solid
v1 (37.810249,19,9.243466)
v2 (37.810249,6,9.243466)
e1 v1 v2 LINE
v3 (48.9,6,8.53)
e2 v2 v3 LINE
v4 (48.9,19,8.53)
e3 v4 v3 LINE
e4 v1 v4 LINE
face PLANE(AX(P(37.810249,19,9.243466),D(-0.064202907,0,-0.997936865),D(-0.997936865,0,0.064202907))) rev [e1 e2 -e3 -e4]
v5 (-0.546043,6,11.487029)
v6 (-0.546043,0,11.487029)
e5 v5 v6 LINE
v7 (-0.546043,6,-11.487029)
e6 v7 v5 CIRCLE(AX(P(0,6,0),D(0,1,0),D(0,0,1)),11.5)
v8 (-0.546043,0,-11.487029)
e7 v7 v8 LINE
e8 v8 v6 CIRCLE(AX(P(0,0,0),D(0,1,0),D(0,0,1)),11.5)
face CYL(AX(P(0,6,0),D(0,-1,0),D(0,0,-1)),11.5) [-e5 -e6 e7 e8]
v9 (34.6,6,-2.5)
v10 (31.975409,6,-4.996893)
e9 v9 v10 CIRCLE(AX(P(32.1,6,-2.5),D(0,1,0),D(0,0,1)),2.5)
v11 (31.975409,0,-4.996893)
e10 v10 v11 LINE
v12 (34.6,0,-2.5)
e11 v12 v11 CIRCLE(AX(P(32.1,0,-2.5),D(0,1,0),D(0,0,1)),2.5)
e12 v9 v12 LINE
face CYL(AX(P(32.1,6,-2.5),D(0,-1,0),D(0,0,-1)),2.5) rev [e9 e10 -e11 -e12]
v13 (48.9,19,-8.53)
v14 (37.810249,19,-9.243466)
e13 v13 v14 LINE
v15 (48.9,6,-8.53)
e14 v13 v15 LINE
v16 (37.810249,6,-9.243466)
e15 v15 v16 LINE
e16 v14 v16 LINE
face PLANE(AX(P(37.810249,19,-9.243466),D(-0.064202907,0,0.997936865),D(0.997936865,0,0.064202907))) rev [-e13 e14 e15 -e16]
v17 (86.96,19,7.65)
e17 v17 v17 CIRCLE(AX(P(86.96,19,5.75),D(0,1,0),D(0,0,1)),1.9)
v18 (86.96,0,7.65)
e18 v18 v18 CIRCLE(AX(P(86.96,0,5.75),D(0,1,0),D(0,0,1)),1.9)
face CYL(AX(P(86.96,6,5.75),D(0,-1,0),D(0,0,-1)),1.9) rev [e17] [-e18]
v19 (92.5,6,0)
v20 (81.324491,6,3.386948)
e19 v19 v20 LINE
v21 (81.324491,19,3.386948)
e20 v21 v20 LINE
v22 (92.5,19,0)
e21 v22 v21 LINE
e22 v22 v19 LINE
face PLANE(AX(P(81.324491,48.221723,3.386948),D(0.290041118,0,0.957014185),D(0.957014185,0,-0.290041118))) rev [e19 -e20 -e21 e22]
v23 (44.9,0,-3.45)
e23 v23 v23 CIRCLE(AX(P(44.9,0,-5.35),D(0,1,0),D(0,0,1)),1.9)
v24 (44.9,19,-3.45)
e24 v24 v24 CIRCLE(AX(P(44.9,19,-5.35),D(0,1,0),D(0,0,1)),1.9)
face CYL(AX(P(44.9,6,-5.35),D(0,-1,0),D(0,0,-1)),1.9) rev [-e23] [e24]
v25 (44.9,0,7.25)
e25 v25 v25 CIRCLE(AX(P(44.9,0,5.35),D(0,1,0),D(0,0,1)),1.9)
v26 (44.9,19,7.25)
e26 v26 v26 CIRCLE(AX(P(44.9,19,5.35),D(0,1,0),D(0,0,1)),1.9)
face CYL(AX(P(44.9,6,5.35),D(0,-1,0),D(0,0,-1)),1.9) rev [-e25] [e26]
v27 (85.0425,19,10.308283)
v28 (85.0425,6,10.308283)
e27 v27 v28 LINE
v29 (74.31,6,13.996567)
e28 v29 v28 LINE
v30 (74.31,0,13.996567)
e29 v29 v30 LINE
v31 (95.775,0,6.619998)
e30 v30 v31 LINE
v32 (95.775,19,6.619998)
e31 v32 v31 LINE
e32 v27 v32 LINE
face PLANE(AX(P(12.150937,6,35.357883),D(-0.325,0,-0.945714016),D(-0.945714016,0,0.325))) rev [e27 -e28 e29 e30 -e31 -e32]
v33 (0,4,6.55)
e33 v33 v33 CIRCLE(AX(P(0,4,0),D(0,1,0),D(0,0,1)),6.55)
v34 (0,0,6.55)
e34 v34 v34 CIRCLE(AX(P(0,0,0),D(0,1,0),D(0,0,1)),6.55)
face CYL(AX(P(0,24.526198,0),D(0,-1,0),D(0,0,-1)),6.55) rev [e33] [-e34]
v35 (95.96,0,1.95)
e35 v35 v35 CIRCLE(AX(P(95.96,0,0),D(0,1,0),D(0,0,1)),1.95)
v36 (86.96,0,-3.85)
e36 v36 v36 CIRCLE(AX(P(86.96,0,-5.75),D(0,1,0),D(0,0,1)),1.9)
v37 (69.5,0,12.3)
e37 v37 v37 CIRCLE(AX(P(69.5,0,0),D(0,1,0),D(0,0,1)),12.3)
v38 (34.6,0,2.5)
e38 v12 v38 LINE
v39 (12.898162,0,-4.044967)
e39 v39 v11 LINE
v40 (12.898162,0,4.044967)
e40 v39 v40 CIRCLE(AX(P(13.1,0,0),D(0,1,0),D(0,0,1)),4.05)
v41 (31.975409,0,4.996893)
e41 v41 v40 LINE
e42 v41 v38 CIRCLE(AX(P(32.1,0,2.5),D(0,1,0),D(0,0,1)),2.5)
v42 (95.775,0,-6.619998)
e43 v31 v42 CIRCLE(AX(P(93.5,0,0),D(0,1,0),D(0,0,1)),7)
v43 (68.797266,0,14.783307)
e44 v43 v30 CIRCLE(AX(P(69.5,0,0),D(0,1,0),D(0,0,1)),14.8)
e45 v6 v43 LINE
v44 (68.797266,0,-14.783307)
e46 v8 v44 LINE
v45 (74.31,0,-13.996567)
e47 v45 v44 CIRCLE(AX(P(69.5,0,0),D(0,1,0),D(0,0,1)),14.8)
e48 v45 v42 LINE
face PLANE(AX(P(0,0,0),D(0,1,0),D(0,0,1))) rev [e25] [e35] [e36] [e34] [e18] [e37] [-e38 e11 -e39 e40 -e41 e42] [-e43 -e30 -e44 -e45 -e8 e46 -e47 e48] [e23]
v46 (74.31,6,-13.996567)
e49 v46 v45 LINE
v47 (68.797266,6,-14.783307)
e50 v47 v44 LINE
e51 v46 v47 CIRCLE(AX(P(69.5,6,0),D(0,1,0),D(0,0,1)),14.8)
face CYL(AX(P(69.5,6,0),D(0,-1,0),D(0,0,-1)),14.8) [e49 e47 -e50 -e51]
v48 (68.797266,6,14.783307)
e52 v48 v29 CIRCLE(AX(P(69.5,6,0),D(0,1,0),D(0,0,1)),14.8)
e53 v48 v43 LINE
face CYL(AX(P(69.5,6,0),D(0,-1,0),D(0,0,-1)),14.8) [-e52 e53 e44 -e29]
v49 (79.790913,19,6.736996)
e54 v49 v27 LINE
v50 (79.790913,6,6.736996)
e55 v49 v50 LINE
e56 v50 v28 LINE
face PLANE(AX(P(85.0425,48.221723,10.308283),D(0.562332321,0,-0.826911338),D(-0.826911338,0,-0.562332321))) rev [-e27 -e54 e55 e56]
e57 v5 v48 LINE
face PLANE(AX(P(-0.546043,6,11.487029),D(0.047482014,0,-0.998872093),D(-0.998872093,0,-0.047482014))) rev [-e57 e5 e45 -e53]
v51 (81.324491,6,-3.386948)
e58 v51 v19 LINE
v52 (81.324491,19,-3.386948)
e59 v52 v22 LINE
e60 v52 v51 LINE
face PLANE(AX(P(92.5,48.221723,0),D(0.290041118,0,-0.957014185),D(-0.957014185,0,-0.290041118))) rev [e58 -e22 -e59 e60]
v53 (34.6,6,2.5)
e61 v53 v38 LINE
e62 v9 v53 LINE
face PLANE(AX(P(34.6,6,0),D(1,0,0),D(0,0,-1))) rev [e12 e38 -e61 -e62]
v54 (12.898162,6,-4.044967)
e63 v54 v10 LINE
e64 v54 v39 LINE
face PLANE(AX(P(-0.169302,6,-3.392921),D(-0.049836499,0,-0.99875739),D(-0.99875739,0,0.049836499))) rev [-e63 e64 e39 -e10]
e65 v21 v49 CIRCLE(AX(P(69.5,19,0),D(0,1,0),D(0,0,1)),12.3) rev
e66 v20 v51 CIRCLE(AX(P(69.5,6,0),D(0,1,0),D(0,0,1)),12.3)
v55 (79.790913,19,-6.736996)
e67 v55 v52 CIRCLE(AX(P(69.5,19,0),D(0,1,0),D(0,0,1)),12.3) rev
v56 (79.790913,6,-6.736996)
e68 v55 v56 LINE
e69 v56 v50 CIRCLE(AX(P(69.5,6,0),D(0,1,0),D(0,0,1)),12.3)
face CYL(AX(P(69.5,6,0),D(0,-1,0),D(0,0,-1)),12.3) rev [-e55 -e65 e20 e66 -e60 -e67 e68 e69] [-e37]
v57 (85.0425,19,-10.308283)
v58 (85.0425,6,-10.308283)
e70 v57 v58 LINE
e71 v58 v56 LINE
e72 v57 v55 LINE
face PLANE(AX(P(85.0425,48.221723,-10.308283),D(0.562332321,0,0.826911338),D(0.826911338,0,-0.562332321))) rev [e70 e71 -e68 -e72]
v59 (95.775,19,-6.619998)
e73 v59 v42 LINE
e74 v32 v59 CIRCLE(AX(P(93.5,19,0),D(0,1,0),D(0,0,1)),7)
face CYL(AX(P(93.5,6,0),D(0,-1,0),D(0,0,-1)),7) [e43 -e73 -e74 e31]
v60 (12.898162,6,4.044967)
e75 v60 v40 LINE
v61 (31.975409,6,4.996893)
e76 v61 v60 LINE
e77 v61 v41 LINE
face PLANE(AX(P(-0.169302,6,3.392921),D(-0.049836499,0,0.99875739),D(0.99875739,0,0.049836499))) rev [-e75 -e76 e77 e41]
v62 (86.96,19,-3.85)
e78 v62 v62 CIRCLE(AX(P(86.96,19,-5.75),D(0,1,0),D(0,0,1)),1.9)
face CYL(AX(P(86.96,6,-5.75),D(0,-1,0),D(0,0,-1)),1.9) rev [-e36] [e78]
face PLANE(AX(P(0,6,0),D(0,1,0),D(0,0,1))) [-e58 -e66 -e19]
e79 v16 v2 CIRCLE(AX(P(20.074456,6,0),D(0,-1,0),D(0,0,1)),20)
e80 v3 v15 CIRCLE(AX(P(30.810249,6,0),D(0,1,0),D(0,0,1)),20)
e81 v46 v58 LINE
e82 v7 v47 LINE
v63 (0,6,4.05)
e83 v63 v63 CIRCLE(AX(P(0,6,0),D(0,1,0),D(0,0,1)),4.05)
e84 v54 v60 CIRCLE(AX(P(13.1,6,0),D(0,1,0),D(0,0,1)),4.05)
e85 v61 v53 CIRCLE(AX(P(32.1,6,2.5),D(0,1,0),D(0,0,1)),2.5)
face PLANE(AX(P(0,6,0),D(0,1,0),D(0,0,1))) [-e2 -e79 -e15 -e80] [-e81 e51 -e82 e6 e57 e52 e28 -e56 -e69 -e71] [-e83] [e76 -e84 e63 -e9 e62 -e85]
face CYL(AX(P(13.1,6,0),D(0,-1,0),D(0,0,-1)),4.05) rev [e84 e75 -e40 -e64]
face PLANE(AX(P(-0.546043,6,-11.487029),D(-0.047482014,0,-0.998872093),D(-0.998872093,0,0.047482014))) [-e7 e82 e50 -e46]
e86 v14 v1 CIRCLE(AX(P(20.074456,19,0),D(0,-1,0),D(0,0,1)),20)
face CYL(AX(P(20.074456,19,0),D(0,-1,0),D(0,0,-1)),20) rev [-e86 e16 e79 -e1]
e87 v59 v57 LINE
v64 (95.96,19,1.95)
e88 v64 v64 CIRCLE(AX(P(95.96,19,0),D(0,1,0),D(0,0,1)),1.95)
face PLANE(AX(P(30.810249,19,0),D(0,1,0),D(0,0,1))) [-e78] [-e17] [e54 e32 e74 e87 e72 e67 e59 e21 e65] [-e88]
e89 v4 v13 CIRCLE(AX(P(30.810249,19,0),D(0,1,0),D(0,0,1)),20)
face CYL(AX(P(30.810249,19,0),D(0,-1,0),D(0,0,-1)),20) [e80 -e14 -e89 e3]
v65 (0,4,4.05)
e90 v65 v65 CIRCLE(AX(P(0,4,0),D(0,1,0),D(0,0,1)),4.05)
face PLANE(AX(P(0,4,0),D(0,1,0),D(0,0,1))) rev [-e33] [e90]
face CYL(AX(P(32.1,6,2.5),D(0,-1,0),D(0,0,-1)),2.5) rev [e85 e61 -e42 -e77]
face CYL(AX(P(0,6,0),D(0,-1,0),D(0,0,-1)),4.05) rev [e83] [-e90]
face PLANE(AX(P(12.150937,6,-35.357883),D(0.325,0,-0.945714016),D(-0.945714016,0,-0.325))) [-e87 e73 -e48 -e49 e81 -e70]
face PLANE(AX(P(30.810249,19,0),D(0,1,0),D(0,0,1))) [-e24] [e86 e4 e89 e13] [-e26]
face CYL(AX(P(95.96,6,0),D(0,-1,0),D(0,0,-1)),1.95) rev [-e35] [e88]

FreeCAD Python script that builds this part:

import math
import FreeCAD as App
import Part
import Sketcher

V = App.Vector
Q = App.Units.Quantity

doc = App.newDocument("Part")
body = doc.addObject("PartDesign::Body", "Body")

sketch1 = doc.addObject("Sketcher::SketchObject", "Sketch")
body.addObject(sketch1)
sketch1.AttachmentSupport = (doc.XZ_Plane, [""])
sketch1.MapMode = "FlatFace"
sketch1.addGeometry([
    Part.LineSegment(V(68.8, -14.8, 0), V(-0.5, -11.5, 0)),
    Part.ArcOfCircle(Part.Circle(V(0, 0, 0), V(0, 0, 1), 11.5), math.radians(93), math.radians(267)),
    Part.LineSegment(V(-0.5, 11.5, 0), V(68.8, 14.8, 0)),
    Part.ArcOfCircle(Part.Circle(V(69.5, 0, 0), V(0, 0, 1), 14.8), math.radians(71), math.radians(93)),
    Part.LineSegment(V(74.3, 14, 0), V(95.8, 6.6, 0)),
    Part.ArcOfCircle(Part.Circle(V(93.5, 0, 0), V(0, 0, 1), 7), math.radians(-71), math.radians(71)),
    Part.LineSegment(V(95.8, -6.6, 0), V(74.3, -14, 0)),
    Part.ArcOfCircle(Part.Circle(V(69.5, 0, 0), V(0, 0, 1), 14.8), math.radians(-93), math.radians(-71)),
    Part.Circle(V(44.9, 5.3, 0), V(0, 0, 1), 1.9),
    Part.Circle(V(87, 5.8, 0), V(0, 0, 1), 1.9),
    Part.Circle(V(0, 0, 0), V(0, 0, 1), 4),
    Part.LineSegment(V(32, 5, 0), V(12.9, 4, 0)),
    Part.ArcOfCircle(Part.Circle(V(13.1, 0, 0), V(0, 0, 1), 4), math.radians(93), math.radians(267)),
    Part.LineSegment(V(12.9, -4, 0), V(32, -5, 0)),
    Part.ArcOfCircle(Part.Circle(V(32.1, -2.5, 0), V(0, 0, 1), 2.5), math.radians(-93), math.radians(0)),
    Part.LineSegment(V(34.6, -2.5, 0), V(34.6, 2.5, 0)),
    Part.ArcOfCircle(Part.Circle(V(32.1, 2.5, 0), V(0, 0, 1), 2.5), math.radians(0), math.radians(93)),
    Part.Circle(V(44.9, -5.3, 0), V(0, 0, 1), 1.9),
    Part.Circle(V(69.5, 0, 0), V(0, 0, 1), 12.3),
    Part.Circle(V(96, 0, 0), V(0, 0, 1), 1.9),
    Part.Circle(V(87, -5.8, 0), V(0, 0, 1), 1.9),
], False)
sketch1.addConstraint([
    Sketcher.Constraint("Tangent", 0, 2, 1, 2),
    Sketcher.Constraint("Tangent", 1, 1, 2, 1),
    Sketcher.Constraint("Tangent", 2, 2, 3, 2),
    Sketcher.Constraint("Tangent", 3, 1, 4, 1),
    Sketcher.Constraint("Tangent", 4, 2, 5, 2),
    Sketcher.Constraint("Tangent", 5, 1, 6, 1),
    Sketcher.Constraint("Tangent", 6, 2, 7, 2),
    Sketcher.Constraint("Tangent", 7, 1, 0, 1),
    Sketcher.Constraint("Tangent", 11, 2, 12, 1),
    Sketcher.Constraint("Tangent", 12, 2, 13, 1),
    Sketcher.Constraint("Tangent", 13, 2, 14, 1),
    Sketcher.Constraint("Tangent", 14, 2, 15, 1),
    Sketcher.Constraint("Tangent", 15, 2, 16, 1),
    Sketcher.Constraint("Tangent", 16, 2, 11, 1),
    Sketcher.Constraint("Vertical", 15),
    Sketcher.Constraint("Coincident", 1, 3, -1, 1),
    Sketcher.Constraint("Coincident", 10, 3, -1, 1),
    Sketcher.Constraint("Coincident", 7, 3, 3, 3),
    Sketcher.Constraint("Coincident", 18, 3, 3, 3),
    Sketcher.Constraint("Equal", 3, 7),
    Sketcher.Constraint("Equal", 8, 9),
    Sketcher.Constraint("Equal", 10, 12),
    Sketcher.Constraint("Equal", 14, 16),
    Sketcher.Constraint("Equal", 9, 17),
    Sketcher.Constraint("Equal", 17, 20),
    Sketcher.Constraint("Symmetric", 8, 3, 17, 3, -1),
    Sketcher.Constraint("Symmetric", 9, 3, 20, 3, -1),
    Sketcher.Constraint("Symmetric", 4, 2, 5, 1, -1),
    Sketcher.Constraint("Symmetric", 11, 2, 12, 2, -1),
    Sketcher.Constraint("PointOnObject", 19, 3, -1),
    Sketcher.Constraint("Radius", 5, Q("7 mm")),
    Sketcher.Constraint("Diameter", 8, Q("3.8 mm")),
    Sketcher.Constraint("Diameter", 10, Q("8.1 mm")),
    Sketcher.Constraint("Diameter", 18, Q("24.6 mm")),
    Sketcher.Constraint("Diameter", 19, Q("3.9 mm")),
    Sketcher.Constraint("Radius", 1, Q("11.5 mm")),
    Sketcher.Constraint("Radius", 3, Q("14.8 mm")),
    Sketcher.Constraint("Radius", 14, Q("2.5 mm")),
    Sketcher.Constraint("DistanceY", 15, 1, 15, 2, Q("5 mm")),
    Sketcher.Constraint("DistanceX", 3, 3, 5, 3, Q("24 mm")),
    Sketcher.Constraint("DistanceX", 12, 3, 14, 3, Q("19 mm")),
    Sketcher.Constraint("DistanceX", 9, 3, 19, 3, Q("9 mm")),
    Sketcher.Constraint("DistanceX", -1, 1, 3, 3, Q("69.5 mm")),
    Sketcher.Constraint("DistanceX", -1, 1, 8, 3, Q("44.9 mm")),
    Sketcher.Constraint("DistanceX", -1, 1, 12, 3, Q("13.1 mm")),
    Sketcher.Constraint("DistanceY", 8, 3, 9, 3, Q("0.4 mm")),
    Sketcher.Constraint("DistanceY", 17, 3, 8, 3, Q("10.7 mm")),
    Sketcher.Constraint("DistanceX", -1, 1, 9, 3, Q("86.96 mm")),
])
pad1 = doc.addObject("PartDesign::Pad", "Pad")
body.addObject(pad1)
pad1.Profile = sketch1
pad1.Length = 6
pad1.Reversed = True

sketch2 = doc.addObject("Sketcher::SketchObject", "Sketch001")
body.addObject(sketch2)
sketch2.AttachmentSupport = (doc.XZ_Plane, [""])
sketch2.MapMode = "FlatFace"
sketch2.addGeometry(Part.Circle(V(0, 0, 0), V(0, 0, 1), 7), False)
sketch2.addConstraint([
    Sketcher.Constraint("Coincident", 0, 3, -1, 1),
    Sketcher.Constraint("Diameter", 0, Q("13.1 mm")),
])
pocket1 = doc.addObject("PartDesign::Pocket", "Pocket")
body.addObject(pocket1)
pocket1.Profile = sketch2
pocket1.Length = 4

sketch3 = doc.addObject("Sketcher::SketchObject", "Sketch002")
body.addObject(sketch3)
sketch3.AttachmentSupport = (doc.XZ_Plane, [""])
sketch3.MapMode = "FlatFace"
sketch3.AttachmentOffset = App.Placement(V(0, 0, -6), App.Rotation())
sketch3.addGeometry([
    Part.LineSegment(V(48.9, -8.5, 0), V(37.8, -9.2, 0)),
    Part.ArcOfCircle(Part.Circle(V(20.1, 0, 0), V(0, 0, 1), 20), math.radians(-28), math.radians(28)),
    Part.LineSegment(V(37.8, 9.2, 0), V(48.9, 8.5, 0)),
    Part.ArcOfCircle(Part.Circle(V(30.8, 0, 0), V(0, 0, 1), 20), math.radians(-25), math.radians(25)),
    Part.Circle(V(44.9, 5.3, 0), V(0, 0, 1), 1.9),
    Part.Circle(V(44.9, -5.3, 0), V(0, 0, 1), 1.9),
], False)
sketch3.addConstraint([
    Sketcher.Constraint("Coincident", 0, 2, 1, 1),
    Sketcher.Constraint("Coincident", 1, 2, 2, 1),
    Sketcher.Constraint("Coincident", 2, 2, 3, 2),
    Sketcher.Constraint("Coincident", 3, 1, 0, 1),
    Sketcher.Constraint("Equal", 1, 3),
    Sketcher.Constraint("Equal", 4, 5),
    Sketcher.Constraint("Symmetric", 4, 3, 5, 3, -1),
    Sketcher.Constraint("Symmetric", 0, 2, 1, 2, -1),
    Sketcher.Constraint("Symmetric", 2, 2, 3, 1, -1),
    Sketcher.Constraint("Radius", 1, Q("20 mm")),
    Sketcher.Constraint("Diameter", 4, Q("3.8 mm")),
    Sketcher.Constraint("DistanceX", 3, 3, 0, 2, Q("7 mm")),
    Sketcher.Constraint("DistanceX", 4, 3, 2, 2, Q("4 mm")),
    Sketcher.Constraint("DistanceX", -1, 1, 4, 3, Q("44.9 mm")),
    Sketcher.Constraint("DistanceY", 5, 3, 4, 3, Q("10.7 mm")),
    Sketcher.Constraint("DistanceY", -1, 1, 2, 2, Q("8.53 mm")),
    Sketcher.Constraint("Distance", 0, Q("11.112678 mm")),
])
pad2 = doc.addObject("PartDesign::Pad", "Pad001")
body.addObject(pad2)
pad2.Profile = sketch3
pad2.Length = 13
pad2.Reversed = True

sketch4 = doc.addObject("Sketcher::SketchObject", "Sketch003")
body.addObject(sketch4)
sketch4.AttachmentSupport = (doc.XZ_Plane, [""])
sketch4.MapMode = "FlatFace"
sketch4.AttachmentOffset = App.Placement(V(0, 0, -6), App.Rotation())
sketch4.addGeometry([
    Part.LineSegment(V(85, -10.3, 0), V(79.8, -6.7, 0)),
    Part.ArcOfCircle(Part.Circle(V(69.5, 0, 0), V(0, 0, 1), 12.3), math.radians(-33.21), math.radians(-15.98)),
    Part.LineSegment(V(81.3, -3.4, 0), V(92.5, 0, 0)),
    Part.LineSegment(V(92.5, 0, 0), V(81.3, 3.4, 0)),
    Part.ArcOfCircle(Part.Circle(V(69.5, 0, 0), V(0, 0, 1), 12.3), math.radians(15.98), math.radians(33.21)),
    Part.LineSegment(V(79.8, 6.7, 0), V(85, 10.3, 0)),
    Part.LineSegment(V(85, 10.3, 0), V(95.8, 6.6, 0)),
    Part.ArcOfCircle(Part.Circle(V(93.5, 0, 0), V(0, 0, 1), 7), math.radians(-71), math.radians(71)),
    Part.LineSegment(V(95.8, -6.6, 0), V(85, -10.3, 0)),
    Part.Circle(V(87, 5.8, 0), V(0, 0, 1), 1.9),
    Part.Circle(V(87, -5.8, 0), V(0, 0, 1), 1.9),
    Part.Circle(V(96, 0, 0), V(0, 0, 1), 1.9),
], False)
sketch4.addConstraint([
    Sketcher.Constraint("Coincident", 0, 2, 1, 1),
    Sketcher.Constraint("Coincident", 1, 2, 2, 1),
    Sketcher.Constraint("Coincident", 2, 2, 3, 1),
    Sketcher.Constraint("Coincident", 3, 2, 4, 1),
    Sketcher.Constraint("Coincident", 4, 2, 5, 1),
    Sketcher.Constraint("Coincident", 5, 2, 6, 1),
    Sketcher.Constraint("Tangent", 6, 2, 7, 2),
    Sketcher.Constraint("Tangent", 7, 1, 8, 1),
    Sketcher.Constraint("Coincident", 8, 2, 0, 1),
    Sketcher.Constraint("Coincident", 4, 3, 1, 3),
    Sketcher.Constraint("Equal", 1, 4),
    Sketcher.Constraint("Equal", 9, 10),
    Sketcher.Constraint("Symmetric", 9, 3, 10, 3, -1),
    Sketcher.Constraint("Symmetric", 1, 2, 3, 2, -1),
    Sketcher.Constraint("Symmetric", 6, 2, 7, 1, -1),
    Sketcher.Constraint("PointOnObject", 11, 3, -1),
    Sketcher.Constraint("PointOnObject", 2, 2, -1),
    Sketcher.Constraint("Vertical", 0, 2, 4, 2),
    Sketcher.Constraint("Vertical", 5, 2, 8, 2),
    Sketcher.Constraint("Radius", 7, Q("7 mm")),
    Sketcher.Constraint("Diameter", 9, Q("3.8 mm")),
    Sketcher.Constraint("Diameter", 11, Q("3.9 mm")),
    Sketcher.Constraint("Radius", 1, Q("12.3 mm")),
    Sketcher.Constraint("DistanceX", 1, 3, 7, 3, Q("24 mm")),
    Sketcher.Constraint("DistanceX", 9, 3, 11, 3, Q("9 mm")),
    Sketcher.Constraint("DistanceX", 2, 2, 7, 3, Q("1 mm")),
    Sketcher.Constraint("DistanceX", -1, 1, 1, 3, Q("69.5 mm")),
    Sketcher.Constraint("DistanceY", 10, 3, 9, 3, Q("11.5 mm")),
    Sketcher.Constraint("DistanceX", -1, 1, 9, 3, Q("86.96 mm")),
    Sketcher.Constraint("DistanceY", -1, 1, 6, 2, Q("6.619998 mm")),
    Sketcher.Constraint("DistanceX", -1, 1, 5, 2, Q("85.0425 mm")),
    Sketcher.Constraint("DistanceX", -1, 1, 1, 2, Q("81.324491 mm")),
    Sketcher.Constraint("DistanceX", 0, 2, 1, 2, Q("1.533578 mm")),
])
pad3 = doc.addObject("PartDesign::Pad", "Pad002")
body.addObject(pad3)
pad3.Profile = sketch4
pad3.Length = 13
pad3.Reversed = True

doc.recompute()
